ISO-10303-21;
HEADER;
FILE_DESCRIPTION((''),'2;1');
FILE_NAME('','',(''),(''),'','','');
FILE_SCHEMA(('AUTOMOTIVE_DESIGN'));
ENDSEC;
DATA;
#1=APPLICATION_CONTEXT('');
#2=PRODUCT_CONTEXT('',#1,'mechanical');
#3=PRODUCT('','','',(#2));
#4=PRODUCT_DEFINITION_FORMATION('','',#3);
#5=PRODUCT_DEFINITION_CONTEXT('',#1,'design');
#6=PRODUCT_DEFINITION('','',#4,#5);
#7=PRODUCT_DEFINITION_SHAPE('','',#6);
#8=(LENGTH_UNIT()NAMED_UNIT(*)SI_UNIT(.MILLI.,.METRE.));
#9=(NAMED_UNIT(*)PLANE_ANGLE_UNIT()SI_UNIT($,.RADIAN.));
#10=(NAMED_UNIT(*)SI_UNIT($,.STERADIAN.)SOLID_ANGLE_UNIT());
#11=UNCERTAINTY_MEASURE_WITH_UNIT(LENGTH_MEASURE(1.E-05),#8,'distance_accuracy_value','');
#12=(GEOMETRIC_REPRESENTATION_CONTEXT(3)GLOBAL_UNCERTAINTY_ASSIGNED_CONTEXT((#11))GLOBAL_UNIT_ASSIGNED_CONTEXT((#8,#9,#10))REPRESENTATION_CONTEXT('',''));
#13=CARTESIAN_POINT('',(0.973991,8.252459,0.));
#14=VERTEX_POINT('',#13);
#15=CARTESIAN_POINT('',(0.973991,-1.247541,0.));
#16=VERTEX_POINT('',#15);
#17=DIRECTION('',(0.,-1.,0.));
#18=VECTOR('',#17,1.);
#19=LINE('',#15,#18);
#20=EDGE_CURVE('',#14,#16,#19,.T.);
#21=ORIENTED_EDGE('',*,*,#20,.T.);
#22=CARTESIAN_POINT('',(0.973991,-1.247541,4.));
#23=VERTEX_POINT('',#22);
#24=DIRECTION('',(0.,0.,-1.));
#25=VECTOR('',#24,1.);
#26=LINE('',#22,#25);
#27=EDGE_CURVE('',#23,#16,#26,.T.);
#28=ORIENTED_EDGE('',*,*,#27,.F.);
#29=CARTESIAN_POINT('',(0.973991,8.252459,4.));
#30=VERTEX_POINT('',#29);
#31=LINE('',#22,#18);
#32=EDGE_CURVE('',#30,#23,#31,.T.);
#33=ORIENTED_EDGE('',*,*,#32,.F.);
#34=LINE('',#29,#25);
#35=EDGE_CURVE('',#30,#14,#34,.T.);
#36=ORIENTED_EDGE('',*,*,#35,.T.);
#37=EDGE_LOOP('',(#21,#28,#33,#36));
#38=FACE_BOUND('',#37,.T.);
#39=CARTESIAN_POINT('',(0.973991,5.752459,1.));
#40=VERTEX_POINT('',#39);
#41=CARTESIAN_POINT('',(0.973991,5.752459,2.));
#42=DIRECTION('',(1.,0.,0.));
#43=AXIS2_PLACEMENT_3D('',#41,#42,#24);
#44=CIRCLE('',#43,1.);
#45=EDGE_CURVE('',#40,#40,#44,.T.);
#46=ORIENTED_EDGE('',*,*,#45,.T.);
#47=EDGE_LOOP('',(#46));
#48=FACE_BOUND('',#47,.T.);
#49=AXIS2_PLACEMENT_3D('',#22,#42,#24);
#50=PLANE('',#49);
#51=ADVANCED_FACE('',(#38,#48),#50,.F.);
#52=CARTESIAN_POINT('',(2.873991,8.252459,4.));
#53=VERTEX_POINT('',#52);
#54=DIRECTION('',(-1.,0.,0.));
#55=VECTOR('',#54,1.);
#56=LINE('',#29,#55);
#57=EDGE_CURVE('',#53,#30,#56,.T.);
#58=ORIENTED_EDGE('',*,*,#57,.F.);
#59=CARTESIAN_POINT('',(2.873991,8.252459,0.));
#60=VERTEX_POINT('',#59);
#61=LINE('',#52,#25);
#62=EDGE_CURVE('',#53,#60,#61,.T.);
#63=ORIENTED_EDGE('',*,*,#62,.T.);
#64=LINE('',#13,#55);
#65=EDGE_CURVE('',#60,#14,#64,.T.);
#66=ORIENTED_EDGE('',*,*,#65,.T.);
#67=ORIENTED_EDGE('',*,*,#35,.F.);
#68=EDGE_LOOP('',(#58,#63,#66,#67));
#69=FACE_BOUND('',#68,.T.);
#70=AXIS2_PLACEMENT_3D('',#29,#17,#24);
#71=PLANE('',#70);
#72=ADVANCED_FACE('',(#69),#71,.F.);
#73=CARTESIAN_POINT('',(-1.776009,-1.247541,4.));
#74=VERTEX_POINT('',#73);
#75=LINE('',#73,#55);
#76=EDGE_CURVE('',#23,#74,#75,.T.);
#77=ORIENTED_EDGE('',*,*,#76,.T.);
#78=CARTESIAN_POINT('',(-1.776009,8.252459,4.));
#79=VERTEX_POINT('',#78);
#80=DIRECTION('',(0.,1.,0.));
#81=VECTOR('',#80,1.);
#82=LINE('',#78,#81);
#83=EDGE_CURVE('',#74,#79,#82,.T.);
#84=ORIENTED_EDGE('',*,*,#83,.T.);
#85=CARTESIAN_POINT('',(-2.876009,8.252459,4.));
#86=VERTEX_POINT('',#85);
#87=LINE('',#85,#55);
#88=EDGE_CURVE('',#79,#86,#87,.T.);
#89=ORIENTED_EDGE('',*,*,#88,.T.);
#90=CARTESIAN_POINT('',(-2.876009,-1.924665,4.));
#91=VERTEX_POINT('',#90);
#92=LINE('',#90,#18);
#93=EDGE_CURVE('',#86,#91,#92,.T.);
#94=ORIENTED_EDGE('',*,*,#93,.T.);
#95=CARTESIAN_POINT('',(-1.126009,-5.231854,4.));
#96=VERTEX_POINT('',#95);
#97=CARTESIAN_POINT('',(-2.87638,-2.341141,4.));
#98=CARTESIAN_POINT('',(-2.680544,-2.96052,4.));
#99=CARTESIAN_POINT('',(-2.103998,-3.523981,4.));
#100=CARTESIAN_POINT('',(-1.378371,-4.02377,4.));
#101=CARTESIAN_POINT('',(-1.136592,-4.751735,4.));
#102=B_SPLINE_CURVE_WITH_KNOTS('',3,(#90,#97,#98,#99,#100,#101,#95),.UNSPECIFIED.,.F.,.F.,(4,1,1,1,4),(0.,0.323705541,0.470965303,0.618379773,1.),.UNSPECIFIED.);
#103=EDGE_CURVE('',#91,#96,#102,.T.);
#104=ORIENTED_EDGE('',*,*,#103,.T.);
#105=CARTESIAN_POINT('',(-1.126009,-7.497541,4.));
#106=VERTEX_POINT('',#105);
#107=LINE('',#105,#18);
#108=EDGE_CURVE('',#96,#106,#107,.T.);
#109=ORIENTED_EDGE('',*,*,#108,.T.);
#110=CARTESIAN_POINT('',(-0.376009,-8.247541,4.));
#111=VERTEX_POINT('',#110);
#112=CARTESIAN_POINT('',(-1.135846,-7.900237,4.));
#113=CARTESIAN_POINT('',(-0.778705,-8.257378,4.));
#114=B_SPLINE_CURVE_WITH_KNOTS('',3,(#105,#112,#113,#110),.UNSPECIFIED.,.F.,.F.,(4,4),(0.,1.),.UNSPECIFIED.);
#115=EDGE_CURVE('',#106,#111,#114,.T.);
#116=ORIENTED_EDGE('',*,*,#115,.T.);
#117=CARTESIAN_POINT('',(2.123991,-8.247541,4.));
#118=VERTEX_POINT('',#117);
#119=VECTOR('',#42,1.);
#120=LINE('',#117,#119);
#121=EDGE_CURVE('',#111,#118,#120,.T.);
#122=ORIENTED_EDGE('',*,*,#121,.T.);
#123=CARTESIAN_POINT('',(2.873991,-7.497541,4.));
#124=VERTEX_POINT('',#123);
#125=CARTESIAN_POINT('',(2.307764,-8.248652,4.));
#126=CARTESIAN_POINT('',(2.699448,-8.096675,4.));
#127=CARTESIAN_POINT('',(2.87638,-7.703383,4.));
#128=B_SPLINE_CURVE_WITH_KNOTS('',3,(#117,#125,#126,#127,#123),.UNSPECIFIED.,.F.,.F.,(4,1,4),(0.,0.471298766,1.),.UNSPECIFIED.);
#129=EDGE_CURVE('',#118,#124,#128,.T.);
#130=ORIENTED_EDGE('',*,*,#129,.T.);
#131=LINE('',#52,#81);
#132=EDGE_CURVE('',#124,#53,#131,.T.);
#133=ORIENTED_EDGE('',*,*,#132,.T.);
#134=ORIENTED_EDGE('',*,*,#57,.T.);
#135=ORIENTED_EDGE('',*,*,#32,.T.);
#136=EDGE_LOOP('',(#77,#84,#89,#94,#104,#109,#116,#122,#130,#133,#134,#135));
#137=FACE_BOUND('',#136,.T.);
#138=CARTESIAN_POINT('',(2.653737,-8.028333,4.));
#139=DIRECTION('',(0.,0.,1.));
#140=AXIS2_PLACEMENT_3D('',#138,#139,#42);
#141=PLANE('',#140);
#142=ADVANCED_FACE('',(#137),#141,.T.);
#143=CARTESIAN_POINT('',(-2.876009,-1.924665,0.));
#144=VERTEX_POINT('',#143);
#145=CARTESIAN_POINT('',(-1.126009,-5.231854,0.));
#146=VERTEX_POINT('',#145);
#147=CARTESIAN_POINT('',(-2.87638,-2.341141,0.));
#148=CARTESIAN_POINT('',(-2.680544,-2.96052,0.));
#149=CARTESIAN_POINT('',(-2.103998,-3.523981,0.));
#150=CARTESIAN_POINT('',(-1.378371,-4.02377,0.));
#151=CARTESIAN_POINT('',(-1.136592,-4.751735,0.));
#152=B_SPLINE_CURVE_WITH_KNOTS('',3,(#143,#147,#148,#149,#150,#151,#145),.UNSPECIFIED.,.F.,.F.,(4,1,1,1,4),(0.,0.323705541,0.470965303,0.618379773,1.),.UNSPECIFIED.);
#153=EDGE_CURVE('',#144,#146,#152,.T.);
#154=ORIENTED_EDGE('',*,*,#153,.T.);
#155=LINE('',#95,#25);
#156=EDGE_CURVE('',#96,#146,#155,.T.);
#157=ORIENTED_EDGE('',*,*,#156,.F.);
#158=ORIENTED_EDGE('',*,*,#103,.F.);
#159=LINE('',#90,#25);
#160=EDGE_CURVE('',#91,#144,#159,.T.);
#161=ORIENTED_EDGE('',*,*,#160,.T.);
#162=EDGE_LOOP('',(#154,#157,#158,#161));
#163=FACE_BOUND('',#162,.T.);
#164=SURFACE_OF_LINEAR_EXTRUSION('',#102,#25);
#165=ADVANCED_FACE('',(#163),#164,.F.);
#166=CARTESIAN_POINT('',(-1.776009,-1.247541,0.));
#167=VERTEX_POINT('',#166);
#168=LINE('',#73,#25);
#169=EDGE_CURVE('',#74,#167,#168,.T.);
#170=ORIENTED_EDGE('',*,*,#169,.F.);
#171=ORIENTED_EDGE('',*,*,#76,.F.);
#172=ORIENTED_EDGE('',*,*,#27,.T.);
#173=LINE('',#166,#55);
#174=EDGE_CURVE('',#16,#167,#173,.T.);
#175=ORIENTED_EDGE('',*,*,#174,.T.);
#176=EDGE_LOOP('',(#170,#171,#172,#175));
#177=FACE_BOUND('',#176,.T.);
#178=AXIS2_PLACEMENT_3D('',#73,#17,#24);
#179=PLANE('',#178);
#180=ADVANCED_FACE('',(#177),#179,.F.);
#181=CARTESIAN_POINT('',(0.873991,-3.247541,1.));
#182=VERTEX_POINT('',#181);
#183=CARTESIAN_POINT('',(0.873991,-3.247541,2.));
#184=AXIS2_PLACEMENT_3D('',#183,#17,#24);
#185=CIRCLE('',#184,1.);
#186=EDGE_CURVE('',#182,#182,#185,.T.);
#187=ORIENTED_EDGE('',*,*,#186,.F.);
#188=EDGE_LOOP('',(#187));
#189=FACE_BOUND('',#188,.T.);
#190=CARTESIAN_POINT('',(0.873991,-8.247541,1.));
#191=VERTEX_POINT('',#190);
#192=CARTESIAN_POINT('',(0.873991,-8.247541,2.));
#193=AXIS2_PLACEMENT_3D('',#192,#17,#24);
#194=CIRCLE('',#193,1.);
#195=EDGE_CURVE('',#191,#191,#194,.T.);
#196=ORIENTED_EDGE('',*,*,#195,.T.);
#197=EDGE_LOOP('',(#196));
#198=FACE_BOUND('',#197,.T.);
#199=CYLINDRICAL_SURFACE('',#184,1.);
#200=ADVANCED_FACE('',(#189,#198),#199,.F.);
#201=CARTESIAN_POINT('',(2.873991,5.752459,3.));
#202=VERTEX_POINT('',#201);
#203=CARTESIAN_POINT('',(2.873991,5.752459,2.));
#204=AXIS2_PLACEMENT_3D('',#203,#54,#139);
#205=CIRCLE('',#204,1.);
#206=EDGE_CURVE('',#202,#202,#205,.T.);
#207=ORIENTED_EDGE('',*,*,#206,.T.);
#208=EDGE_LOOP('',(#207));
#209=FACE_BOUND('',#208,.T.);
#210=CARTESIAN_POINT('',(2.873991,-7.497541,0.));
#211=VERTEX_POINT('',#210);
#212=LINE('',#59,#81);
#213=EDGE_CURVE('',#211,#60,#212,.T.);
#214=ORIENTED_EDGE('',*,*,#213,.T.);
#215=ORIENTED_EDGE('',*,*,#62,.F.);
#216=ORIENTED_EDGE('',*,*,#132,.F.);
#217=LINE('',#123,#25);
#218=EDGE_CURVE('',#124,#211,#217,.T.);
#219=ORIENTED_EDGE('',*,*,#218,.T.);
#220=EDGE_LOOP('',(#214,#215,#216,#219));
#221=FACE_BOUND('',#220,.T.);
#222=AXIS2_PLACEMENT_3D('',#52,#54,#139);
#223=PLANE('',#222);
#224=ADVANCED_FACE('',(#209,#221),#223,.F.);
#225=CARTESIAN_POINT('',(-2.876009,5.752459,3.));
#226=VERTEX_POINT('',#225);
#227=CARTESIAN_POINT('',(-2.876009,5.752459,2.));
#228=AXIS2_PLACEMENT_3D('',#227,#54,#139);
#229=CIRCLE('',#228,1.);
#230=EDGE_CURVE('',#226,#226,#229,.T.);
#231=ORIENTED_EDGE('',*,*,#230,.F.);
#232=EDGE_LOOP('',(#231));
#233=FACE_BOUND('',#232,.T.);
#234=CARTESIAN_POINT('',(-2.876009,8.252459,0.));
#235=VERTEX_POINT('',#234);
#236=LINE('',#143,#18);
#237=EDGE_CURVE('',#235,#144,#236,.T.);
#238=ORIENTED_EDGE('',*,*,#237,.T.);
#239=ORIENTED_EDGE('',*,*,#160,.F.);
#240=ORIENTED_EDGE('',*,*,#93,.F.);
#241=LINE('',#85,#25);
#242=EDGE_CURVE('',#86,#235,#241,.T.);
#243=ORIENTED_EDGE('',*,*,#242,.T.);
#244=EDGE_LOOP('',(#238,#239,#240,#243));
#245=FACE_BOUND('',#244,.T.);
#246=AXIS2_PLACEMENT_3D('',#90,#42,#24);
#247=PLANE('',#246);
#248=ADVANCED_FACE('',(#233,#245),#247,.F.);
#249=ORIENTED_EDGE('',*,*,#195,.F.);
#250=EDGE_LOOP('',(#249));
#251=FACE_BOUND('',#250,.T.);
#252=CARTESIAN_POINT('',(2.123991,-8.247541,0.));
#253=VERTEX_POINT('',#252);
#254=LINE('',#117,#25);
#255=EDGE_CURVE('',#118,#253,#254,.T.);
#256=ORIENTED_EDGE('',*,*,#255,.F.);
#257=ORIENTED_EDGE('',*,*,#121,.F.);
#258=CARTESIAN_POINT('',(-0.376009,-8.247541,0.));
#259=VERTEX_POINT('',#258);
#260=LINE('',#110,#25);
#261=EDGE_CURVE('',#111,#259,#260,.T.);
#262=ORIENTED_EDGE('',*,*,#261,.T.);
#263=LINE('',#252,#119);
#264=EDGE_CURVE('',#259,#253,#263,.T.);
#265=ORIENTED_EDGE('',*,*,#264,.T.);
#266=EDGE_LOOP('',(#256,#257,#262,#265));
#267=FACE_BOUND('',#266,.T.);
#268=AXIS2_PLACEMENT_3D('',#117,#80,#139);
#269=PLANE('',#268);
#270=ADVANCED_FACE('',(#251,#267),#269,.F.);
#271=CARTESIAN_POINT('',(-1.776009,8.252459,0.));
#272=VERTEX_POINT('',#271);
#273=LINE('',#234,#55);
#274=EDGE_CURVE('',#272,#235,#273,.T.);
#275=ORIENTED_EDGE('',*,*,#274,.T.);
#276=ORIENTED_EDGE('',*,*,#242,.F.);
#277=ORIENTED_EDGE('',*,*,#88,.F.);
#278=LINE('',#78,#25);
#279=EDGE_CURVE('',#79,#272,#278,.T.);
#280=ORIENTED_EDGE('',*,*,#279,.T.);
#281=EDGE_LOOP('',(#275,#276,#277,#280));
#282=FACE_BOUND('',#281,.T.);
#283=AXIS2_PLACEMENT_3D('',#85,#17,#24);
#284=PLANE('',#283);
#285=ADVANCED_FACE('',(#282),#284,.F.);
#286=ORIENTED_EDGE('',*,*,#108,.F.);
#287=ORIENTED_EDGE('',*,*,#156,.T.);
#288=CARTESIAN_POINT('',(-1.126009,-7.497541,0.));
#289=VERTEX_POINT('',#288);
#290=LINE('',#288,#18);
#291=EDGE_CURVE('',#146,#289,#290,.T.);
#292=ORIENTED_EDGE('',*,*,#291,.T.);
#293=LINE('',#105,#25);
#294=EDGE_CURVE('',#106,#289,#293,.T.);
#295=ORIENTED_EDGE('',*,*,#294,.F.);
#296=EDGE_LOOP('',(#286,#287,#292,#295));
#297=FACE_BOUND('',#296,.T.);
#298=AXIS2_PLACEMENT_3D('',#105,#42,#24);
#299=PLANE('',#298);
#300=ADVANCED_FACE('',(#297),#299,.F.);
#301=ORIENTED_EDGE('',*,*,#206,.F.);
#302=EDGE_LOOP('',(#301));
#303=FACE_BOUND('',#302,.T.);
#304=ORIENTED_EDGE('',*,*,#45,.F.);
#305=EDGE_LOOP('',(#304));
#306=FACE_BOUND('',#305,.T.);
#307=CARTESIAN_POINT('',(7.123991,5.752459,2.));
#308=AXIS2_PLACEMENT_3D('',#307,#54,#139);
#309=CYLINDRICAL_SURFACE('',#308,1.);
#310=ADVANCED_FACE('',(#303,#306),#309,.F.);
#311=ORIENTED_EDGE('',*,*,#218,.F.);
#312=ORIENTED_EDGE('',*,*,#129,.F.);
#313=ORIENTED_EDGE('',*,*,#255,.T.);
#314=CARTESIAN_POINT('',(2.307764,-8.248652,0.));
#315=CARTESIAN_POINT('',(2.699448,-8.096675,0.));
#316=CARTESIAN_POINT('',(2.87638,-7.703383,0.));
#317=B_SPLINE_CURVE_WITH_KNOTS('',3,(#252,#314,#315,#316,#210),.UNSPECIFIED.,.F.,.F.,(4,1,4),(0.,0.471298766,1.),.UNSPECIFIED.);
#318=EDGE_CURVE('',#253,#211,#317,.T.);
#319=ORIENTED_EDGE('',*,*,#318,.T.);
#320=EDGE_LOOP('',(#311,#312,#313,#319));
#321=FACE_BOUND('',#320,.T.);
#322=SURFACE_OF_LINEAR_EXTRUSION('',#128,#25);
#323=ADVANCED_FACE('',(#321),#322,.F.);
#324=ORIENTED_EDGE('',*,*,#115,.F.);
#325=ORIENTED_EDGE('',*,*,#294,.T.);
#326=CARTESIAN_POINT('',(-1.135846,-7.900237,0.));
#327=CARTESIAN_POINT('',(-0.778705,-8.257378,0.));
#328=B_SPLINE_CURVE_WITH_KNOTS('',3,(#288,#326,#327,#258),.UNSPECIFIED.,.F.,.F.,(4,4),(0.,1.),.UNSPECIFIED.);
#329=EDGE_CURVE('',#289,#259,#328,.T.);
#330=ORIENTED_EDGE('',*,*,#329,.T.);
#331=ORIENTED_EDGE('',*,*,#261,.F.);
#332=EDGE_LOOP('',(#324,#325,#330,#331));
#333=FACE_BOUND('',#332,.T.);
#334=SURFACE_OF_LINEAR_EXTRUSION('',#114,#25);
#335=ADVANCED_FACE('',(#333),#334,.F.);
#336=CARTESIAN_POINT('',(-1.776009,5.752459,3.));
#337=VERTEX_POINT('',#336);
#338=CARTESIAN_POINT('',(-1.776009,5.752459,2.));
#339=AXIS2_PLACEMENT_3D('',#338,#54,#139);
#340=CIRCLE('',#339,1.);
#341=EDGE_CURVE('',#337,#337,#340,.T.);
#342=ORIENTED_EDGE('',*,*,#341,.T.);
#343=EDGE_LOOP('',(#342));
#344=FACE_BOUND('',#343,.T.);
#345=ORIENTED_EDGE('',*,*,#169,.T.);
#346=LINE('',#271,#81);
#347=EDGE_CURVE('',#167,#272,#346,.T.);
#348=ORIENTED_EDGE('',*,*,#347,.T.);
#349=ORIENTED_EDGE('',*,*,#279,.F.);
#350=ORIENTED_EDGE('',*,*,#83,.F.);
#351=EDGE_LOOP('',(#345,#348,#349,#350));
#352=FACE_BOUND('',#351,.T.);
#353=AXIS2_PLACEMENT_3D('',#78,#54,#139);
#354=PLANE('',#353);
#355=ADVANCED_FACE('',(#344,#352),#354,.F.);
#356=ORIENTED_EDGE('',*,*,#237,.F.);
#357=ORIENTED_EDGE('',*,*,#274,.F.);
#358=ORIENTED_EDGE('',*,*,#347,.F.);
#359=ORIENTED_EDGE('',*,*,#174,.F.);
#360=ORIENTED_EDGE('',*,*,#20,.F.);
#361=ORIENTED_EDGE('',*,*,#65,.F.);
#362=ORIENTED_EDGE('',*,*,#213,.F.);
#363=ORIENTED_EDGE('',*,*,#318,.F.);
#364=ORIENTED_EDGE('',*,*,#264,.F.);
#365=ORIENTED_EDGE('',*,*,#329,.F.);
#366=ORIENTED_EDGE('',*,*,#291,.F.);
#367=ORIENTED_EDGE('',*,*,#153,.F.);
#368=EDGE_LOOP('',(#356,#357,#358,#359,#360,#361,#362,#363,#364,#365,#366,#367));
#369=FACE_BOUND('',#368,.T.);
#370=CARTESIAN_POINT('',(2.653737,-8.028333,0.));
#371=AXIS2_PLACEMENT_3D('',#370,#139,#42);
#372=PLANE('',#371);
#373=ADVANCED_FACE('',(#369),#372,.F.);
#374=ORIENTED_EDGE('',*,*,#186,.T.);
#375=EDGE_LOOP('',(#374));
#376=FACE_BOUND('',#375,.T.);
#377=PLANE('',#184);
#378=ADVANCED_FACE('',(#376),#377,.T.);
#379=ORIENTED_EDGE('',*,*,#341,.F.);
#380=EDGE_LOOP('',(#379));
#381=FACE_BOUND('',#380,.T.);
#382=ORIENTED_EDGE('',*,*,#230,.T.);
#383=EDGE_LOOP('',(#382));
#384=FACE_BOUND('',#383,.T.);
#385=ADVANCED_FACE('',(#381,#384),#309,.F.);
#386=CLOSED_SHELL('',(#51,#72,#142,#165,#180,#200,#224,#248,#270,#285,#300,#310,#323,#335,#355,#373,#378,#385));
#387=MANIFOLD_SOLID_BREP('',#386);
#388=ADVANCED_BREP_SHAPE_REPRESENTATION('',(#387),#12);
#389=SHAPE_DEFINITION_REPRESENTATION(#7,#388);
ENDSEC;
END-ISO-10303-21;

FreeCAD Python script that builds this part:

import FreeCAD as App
import Part
import Sketcher
Q = App.Units.Quantity

doc = App.newDocument("Part")
body = doc.addObject("PartDesign::Body", "Body")

# Sketch on XY plane
sketch1 = body.newObject("Sketcher::SketchObject", "Sketch")
sketch1.AttachmentSupport = (doc.getObject("XY_Plane"), [""])
sketch1.MapMode = "FlatFace"
sketch1.addGeometry([
    Part.LineSegment(App.Vector(2.873991, -7.497541, 0), App.Vector(2.873991, 8.252459, 0)),  # 0
    Part.LineSegment(App.Vector(2.873991, 8.252459, 0), App.Vector(0.973991, 8.252459, 0)),  # 1
    Part.LineSegment(App.Vector(0.973991, 8.252459, 0), App.Vector(0.973991, -1.247541, 0)),  # 2
    Part.LineSegment(App.Vector(0.973991, -1.247541, 0), App.Vector(-1.776009, -1.247541, 0)),  # 3
    Part.LineSegment(App.Vector(-1.776009, -1.247541, 0), App.Vector(-1.776009, 8.252459, 0)),  # 4
    Part.LineSegment(App.Vector(-1.776009, 8.252459, 0), App.Vector(-2.876009, 8.252459, 0)),  # 5
    Part.LineSegment(App.Vector(-2.876009, 8.252459, 0), App.Vector(-2.876009, -1.924665, 0)),  # 6
    Part.BSplineCurve([App.Vector(-1.126009, -5.231854, 0), App.Vector(-1.136592, -4.751735, 0), App.Vector(-1.378371, -4.02377, 0), App.Vector(-2.103998, -3.523981, 0), App.Vector(-2.680544, -2.96052, 0), App.Vector(-2.87638, -2.341141, 0), App.Vector(-2.876009, -1.924665, 0)], [4, 1, 1, 1, 4], [0, 0.381620227, 0.529034697, 0.676294459, 1], False, 3, [1, 1, 1, 1, 1, 1, 1], False),  # 7
    Part.LineSegment(App.Vector(-1.126009, -5.231854, 0), App.Vector(-1.126009, -7.497541, 0)),  # 8
    Part.BSplineCurve([App.Vector(-0.376009, -8.247541, 0), App.Vector(-0.778705, -8.257378, 0), App.Vector(-1.135846, -7.900237, 0), App.Vector(-1.126009, -7.497541, 0)], [4, 4], [0, 1], False, 3, [1, 1, 1, 1], False),  # 9
    Part.LineSegment(App.Vector(-0.376009, -8.247541, 0), App.Vector(2.123991, -8.247541, 0)),  # 10
    Part.BSplineCurve([App.Vector(2.873991, -7.497541, 0), App.Vector(2.87638, -7.703383, 0), App.Vector(2.699448, -8.096675, 0), App.Vector(2.307764, -8.248652, 0), App.Vector(2.123991, -8.247541, 0)], [4, 1, 4], [0, 0.528701234, 1], False, 3, [1, 1, 1, 1, 1], False),  # 11
], False)
sketch1.addConstraint([
    Sketcher.Constraint("Block", 7),
    Sketcher.Constraint("Block", 9),
    Sketcher.Constraint("Block", 11),
    Sketcher.Constraint("Coincident", 0, 2, 1, 1),
    Sketcher.Constraint("Coincident", 1, 2, 2, 1),
    Sketcher.Constraint("Coincident", 2, 2, 3, 1),
    Sketcher.Constraint("Coincident", 3, 2, 4, 1),
    Sketcher.Constraint("Coincident", 4, 2, 5, 1),
    Sketcher.Constraint("Coincident", 5, 2, 6, 1),
    Sketcher.Constraint("Coincident", 6, 2, 7, 2),
    Sketcher.Constraint("Coincident", 7, 1, 8, 1),
    Sketcher.Constraint("Coincident", 8, 2, 9, 2),
    Sketcher.Constraint("Coincident", 9, 1, 10, 1),
    Sketcher.Constraint("Coincident", 10, 2, 11, 2),
    Sketcher.Constraint("Coincident", 11, 1, 0, 1),
    Sketcher.Constraint("Vertical", 0),
    Sketcher.Constraint("Horizontal", 1),
    Sketcher.Constraint("Vertical", 2),
    Sketcher.Constraint("Horizontal", 3),
    Sketcher.Constraint("Vertical", 4),
    Sketcher.Constraint("Horizontal", 5),
    Sketcher.Constraint("Vertical", 6),
    Sketcher.Constraint("Horizontal", 1, 2, 4, 2),
    Sketcher.Constraint("DistanceX", 1, 2, 1, 1, Q("1.9 mm")),
    Sketcher.Constraint("DistanceX", 5, 2, 5, 1, Q("1.1 mm")),
    Sketcher.Constraint("DistanceY", 2, 2, 2, 1, Q("9.5 mm")),
    Sketcher.Constraint("DistanceY", 10, 2, 2, 2, Q("7 mm")),
])
pad1 = body.newObject("PartDesign::Pad", "Pad")
pad1.Profile = sketch1
pad1.Length = 4

# Sketch on YZ plane
sketch2 = body.newObject("Sketcher::SketchObject", "Sketch001")
sketch2.AttachmentSupport = (doc.getObject("YZ_Plane"), [""])
sketch2.MapMode = "FlatFace"
sketch2.AttachmentOffset = App.Placement(App.Vector(0, 0, -2.876009), App.Rotation())
sketch2.addGeometry(Part.Circle(App.Vector(5.8, 2, 0), App.Vector(0, 0, 1), 1), False)
sketch2.addConstraint([
    Sketcher.Constraint("Diameter", 0, Q("2 mm")),
    Sketcher.Constraint("DistanceY", -1, 1, 0, 3, Q("2 mm")),
    Sketcher.Constraint("DistanceX", -1, 1, 0, 3, Q("5.752459 mm")),
])
pocket1 = body.newObject("PartDesign::Pocket", "Pocket")
pocket1.Profile = sketch2
pocket1.Length = 10
pocket1.Reversed = True

# Sketch on XZ plane
sketch3 = body.newObject("Sketcher::SketchObject", "Sketch002")
sketch3.AttachmentSupport = (doc.getObject("XZ_Plane"), [""])
sketch3.MapMode = "FlatFace"
sketch3.AttachmentOffset = App.Placement(App.Vector(0, 0, 8.247541), App.Rotation())
sketch3.addGeometry(Part.Circle(App.Vector(0.9, 2, 0), App.Vector(0, 0, 1), 1), False)
sketch3.addConstraint([
    Sketcher.Constraint("Diameter", 0, Q("2 mm")),
    Sketcher.Constraint("DistanceY", -1, 1, 0, 3, Q("2 mm")),
    Sketcher.Constraint("DistanceX", -1, 1, 0, 3, Q("0.873991 mm")),
])
pocket2 = body.newObject("PartDesign::Pocket", "Pocket001")
pocket2.Profile = sketch3
pocket2.Length = 5

doc.recompute()
